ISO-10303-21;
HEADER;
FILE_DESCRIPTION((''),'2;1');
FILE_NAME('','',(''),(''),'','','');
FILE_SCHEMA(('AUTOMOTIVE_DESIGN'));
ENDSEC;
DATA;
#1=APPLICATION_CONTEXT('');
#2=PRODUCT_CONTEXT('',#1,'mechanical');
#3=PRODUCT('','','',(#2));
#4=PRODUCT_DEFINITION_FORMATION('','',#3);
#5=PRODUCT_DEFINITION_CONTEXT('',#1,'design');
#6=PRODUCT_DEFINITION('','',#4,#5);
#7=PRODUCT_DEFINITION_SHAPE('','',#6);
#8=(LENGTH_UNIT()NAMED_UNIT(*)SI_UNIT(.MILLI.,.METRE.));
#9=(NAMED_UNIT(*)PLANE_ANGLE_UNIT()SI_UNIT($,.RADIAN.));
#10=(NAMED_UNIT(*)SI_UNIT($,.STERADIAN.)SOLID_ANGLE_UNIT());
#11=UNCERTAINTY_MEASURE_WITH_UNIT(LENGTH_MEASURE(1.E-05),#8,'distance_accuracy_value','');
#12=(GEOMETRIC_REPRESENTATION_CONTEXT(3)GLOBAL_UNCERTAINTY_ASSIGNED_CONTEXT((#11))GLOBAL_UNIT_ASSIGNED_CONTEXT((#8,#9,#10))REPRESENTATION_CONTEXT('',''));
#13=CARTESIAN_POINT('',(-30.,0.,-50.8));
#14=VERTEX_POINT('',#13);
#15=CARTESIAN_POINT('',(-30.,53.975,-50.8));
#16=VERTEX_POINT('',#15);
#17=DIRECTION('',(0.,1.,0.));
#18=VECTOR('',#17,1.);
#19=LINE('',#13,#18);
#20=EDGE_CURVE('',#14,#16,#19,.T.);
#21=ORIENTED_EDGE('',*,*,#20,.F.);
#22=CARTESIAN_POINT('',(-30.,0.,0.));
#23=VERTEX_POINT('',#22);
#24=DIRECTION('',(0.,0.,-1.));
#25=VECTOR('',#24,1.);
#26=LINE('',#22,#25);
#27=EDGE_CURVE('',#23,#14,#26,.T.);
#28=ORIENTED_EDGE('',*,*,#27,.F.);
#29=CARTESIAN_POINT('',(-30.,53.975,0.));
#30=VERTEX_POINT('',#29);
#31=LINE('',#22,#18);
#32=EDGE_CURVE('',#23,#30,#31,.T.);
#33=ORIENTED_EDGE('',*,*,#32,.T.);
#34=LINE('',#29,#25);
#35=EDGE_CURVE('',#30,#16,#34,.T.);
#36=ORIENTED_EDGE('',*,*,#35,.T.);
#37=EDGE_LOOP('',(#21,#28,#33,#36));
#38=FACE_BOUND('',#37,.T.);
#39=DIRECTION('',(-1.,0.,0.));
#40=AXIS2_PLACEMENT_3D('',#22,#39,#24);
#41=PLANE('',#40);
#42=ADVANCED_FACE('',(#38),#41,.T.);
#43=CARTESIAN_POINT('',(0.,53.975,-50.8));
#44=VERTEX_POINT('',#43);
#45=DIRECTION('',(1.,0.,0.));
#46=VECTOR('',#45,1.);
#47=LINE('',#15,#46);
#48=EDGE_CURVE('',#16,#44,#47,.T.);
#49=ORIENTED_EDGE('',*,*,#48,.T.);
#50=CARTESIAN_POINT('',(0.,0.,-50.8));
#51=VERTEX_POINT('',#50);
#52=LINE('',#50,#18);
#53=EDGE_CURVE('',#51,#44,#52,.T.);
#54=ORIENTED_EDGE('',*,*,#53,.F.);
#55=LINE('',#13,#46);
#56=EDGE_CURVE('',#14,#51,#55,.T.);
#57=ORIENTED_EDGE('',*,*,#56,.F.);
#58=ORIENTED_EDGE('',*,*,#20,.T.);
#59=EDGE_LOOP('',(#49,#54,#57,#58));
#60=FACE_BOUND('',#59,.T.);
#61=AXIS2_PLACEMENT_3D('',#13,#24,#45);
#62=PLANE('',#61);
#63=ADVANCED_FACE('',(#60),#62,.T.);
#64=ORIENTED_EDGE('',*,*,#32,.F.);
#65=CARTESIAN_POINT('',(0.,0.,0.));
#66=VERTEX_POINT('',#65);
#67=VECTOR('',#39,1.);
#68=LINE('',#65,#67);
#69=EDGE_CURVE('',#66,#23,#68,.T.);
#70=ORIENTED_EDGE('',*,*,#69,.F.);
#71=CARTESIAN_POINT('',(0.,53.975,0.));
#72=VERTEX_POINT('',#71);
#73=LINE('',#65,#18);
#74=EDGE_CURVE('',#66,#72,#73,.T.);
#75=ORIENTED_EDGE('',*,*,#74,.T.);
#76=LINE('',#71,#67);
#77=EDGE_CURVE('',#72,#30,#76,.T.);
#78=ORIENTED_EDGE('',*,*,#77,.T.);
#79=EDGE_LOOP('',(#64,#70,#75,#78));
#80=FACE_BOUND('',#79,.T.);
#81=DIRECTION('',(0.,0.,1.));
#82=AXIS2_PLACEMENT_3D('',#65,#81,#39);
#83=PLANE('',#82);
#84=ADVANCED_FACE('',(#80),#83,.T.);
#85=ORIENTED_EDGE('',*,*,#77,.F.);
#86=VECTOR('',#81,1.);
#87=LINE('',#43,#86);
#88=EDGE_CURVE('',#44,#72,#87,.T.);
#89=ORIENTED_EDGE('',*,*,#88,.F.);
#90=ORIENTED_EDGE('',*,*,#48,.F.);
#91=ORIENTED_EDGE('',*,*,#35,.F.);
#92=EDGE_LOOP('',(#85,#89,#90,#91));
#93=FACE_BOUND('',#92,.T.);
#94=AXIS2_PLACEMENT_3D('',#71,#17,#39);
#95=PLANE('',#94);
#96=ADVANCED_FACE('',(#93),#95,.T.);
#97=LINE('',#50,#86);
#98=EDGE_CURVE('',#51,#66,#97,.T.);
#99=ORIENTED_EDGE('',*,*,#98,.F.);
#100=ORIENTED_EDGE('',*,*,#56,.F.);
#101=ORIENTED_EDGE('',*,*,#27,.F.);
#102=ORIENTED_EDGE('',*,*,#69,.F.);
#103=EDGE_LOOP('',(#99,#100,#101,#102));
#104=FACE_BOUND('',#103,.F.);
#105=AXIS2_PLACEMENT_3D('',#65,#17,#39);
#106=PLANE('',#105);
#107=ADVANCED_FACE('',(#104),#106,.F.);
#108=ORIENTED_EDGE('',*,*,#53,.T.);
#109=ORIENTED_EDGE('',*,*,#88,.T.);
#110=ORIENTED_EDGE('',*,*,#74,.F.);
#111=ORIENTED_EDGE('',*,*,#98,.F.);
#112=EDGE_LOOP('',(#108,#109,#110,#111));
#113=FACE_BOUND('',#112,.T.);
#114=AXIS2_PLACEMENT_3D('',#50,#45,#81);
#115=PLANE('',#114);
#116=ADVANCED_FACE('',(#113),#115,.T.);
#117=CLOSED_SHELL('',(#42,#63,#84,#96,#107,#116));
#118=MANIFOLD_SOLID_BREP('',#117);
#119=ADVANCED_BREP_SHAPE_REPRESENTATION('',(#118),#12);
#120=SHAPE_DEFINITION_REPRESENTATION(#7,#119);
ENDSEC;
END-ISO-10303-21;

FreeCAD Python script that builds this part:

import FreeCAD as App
import Part
import Sketcher
Q = App.Units.Quantity

doc = App.newDocument("Part")
body = doc.addObject("PartDesign::Body", "Body")

# Sketch on XZ plane
sketch1 = doc.addObject("Sketcher::SketchObject", "Sketch")
body.addObject(sketch1)
sketch1.AttachmentSupport = (doc.XZ_Plane, [""])
sketch1.MapMode = "FlatFace"
sketch1.addGeometry([
    Part.LineSegment(App.Vector(-30, 0, 0), App.Vector(0, 0, 0)),
    Part.LineSegment(App.Vector(0, 0, 0), App.Vector(0, -51, 0)),
    Part.LineSegment(App.Vector(0, -51, 0), App.Vector(-30, -51, 0)),
    Part.LineSegment(App.Vector(-30, -51, 0), App.Vector(-30, 0, 0)),
], False)
sketch1.addConstraint([
    Sketcher.Constraint("Coincident", 0, 2, 1, 1),
    Sketcher.Constraint("Coincident", 1, 2, 2, 1),
    Sketcher.Constraint("Coincident", 2, 2, 3, 1),
    Sketcher.Constraint("Coincident", 3, 2, 0, 1),
    Sketcher.Constraint("Horizontal", 0),
    Sketcher.Constraint("Vertical", 1),
    Sketcher.Constraint("Horizontal", 2),
    Sketcher.Constraint("Vertical", 3),
    Sketcher.Constraint("Coincident", 0, 2, -1, 1),
    Sketcher.Constraint("DistanceY", 1, 2, 1, 1, Q("2 in")),
    Sketcher.Constraint("DistanceX", 0, 1, 0, 2, Q("1.1811 in")),
])
pad1 = doc.addObject("PartDesign::Pad", "Pad")
body.addObject(pad1)
pad1.Profile = sketch1
pad1.Length = Q("2.125 in")
pad1.Reversed = True

doc.recompute()
